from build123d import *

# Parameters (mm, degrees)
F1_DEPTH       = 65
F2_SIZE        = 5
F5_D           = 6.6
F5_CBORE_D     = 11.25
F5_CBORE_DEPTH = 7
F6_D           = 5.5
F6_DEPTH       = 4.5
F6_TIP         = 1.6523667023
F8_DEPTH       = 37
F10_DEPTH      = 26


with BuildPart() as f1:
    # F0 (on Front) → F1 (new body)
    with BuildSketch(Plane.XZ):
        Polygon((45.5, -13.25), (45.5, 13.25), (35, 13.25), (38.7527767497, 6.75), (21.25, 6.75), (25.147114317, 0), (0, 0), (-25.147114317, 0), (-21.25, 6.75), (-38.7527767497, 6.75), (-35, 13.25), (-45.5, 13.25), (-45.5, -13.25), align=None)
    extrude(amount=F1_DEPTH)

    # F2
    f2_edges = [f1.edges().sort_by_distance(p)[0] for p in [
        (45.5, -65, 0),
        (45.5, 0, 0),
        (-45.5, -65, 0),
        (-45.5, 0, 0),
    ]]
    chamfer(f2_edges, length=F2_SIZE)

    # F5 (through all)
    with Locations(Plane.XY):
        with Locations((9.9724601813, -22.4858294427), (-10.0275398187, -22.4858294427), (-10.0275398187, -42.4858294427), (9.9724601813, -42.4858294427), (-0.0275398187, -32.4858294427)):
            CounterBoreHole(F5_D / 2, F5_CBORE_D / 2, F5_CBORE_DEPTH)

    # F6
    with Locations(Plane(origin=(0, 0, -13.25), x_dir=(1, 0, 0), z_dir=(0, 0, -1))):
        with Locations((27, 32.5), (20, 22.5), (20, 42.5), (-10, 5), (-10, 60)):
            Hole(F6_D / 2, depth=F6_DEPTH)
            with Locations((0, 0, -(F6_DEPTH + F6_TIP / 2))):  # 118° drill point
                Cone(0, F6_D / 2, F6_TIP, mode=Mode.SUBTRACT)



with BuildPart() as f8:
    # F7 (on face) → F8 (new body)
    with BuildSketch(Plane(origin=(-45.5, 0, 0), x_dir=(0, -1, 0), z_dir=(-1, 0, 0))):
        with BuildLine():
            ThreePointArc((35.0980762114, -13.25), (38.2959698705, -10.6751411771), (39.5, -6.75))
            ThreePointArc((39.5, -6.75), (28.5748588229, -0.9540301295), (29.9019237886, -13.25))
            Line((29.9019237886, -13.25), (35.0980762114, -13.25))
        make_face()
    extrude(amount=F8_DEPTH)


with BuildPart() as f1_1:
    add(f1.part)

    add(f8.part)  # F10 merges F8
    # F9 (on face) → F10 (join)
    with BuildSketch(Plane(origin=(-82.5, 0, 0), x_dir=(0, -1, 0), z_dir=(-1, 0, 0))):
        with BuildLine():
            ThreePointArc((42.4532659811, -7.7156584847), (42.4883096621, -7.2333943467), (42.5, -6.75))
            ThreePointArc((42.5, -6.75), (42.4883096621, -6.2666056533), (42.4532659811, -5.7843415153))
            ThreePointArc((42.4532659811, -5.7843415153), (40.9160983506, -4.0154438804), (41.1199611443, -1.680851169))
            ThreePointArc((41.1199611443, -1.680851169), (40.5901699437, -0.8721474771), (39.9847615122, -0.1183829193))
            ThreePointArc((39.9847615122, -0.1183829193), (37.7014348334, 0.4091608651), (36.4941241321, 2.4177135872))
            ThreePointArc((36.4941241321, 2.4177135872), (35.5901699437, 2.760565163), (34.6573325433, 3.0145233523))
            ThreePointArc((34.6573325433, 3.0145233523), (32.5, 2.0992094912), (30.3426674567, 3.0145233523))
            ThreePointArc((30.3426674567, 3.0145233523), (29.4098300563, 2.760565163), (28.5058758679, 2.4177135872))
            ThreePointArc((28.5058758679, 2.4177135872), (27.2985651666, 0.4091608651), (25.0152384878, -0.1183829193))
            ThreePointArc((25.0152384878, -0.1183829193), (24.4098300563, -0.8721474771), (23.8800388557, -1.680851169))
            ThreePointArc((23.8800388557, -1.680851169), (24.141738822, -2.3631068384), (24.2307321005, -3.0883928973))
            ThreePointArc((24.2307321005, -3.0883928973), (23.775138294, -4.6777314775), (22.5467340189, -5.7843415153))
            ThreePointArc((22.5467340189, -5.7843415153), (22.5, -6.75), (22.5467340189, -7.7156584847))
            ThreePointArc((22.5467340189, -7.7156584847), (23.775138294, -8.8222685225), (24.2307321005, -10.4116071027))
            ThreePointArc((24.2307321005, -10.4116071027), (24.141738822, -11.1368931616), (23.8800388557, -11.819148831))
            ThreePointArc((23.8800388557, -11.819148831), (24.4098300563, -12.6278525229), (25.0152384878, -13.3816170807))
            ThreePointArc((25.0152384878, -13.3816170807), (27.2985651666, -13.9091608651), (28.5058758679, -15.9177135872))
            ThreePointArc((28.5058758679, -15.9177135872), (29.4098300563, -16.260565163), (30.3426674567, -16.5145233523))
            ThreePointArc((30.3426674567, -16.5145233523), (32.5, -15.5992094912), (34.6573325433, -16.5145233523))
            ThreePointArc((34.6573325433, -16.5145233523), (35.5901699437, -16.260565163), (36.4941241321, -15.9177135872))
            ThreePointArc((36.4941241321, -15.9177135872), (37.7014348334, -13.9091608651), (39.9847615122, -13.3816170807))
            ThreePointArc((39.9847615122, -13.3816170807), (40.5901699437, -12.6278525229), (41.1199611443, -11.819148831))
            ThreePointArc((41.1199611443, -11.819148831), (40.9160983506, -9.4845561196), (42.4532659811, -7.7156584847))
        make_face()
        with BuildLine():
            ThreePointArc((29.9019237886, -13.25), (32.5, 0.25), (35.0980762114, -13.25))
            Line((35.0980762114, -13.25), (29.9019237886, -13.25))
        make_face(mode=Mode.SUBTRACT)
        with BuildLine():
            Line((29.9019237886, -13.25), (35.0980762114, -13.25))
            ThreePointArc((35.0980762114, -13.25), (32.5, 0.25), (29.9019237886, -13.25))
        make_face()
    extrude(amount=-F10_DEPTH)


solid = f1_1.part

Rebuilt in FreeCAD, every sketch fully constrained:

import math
import FreeCAD as App
import Part
import Sketcher

V = App.Vector
Q = App.Units.Quantity


def edges_at(feature, points):
    """Names of the edges that pass closest to the given points."""
    edges = feature.Shape.Edges
    near = lambda p: min(range(len(edges)), key=lambda i: edges[i].distToShape(Part.Vertex(*p))[0])
    return sorted({f"Edge{near(p) + 1}" for p in points})

doc = App.newDocument("Part")
params = doc.addObject("Spreadsheet::Sheet", "Params")
for row, (alias, value) in enumerate([
    ("sketch1_width", "91 mm"),
    ("sketch1_width2", "10.5 mm"),
    ("sketch1_height", "26.5 mm"),
    ("pad1_length", "65 mm"),
    ("chamfer_size", "5 mm"),
    ("sketch2_diameter", "6.6 mm"),
    ("hole_diameter", "6.6 mm"),
    ("hole_cbore_diameter", "11.25 mm"),
    ("hole_cbore_depth", "7 mm"),
    ("sketch3_diameter", "5.5 mm"),
    ("hole2_diameter", "5.5 mm"),
    ("hole2_depth", "4.5 mm"),
    ("sketch4_radius", "7 mm"),
    ("pad2_length", "37 mm"),
    ("sketch5_radius", "10 mm"),
    ("sketch5_radius2", "3 mm"),
    ("pad3_length", "26 mm"),
], start=1):
    params.set(f"A{row}", alias)
    params.set(f"B{row}", "=" + value)
    params.setAlias(f"B{row}", alias)

body = doc.addObject("PartDesign::Body", "Body")

# Sketch on XZ plane
sketch1 = body.newObject("Sketcher::SketchObject", "Sketch")
sketch1.AttachmentSupport = (doc.getObject("XZ_Plane"), [""])
sketch1.MapMode = "FlatFace"
sketch1.addGeometry(Part.LineSegment(V(45.5, -13.25, 0), V(45.5, 13.25, 0)), False)
sketch1.addGeometry(Part.LineSegment(V(45.5, 13.25, 0), V(35, 13.25, 0)), False)
sketch1.addGeometry(Part.LineSegment(V(35, 13.25, 0), V(38.752777, 6.75, 0)), False)
sketch1.addGeometry(Part.LineSegment(V(38.752777, 6.75, 0), V(21.25, 6.75, 0)), False)
sketch1.addGeometry(Part.LineSegment(V(21.25, 6.75, 0), V(25.147114, 0, 0)), False)
sketch1.addGeometry(Part.LineSegment(V(25.147114, 0, 0), V(-25.147114, 0, 0)), False)
sketch1.addGeometry(Part.LineSegment(V(-25.147114, 0, 0), V(-21.25, 6.75, 0)), False)
sketch1.addGeometry(Part.LineSegment(V(-21.25, 6.75, 0), V(-38.752777, 6.75, 0)), False)
sketch1.addGeometry(Part.LineSegment(V(-38.752777, 6.75, 0), V(-35, 13.25, 0)), False)
sketch1.addGeometry(Part.LineSegment(V(-35, 13.25, 0), V(-45.5, 13.25, 0)), False)
sketch1.addGeometry(Part.LineSegment(V(-45.5, 13.25, 0), V(-45.5, -13.25, 0)), False)
sketch1.addGeometry(Part.LineSegment(V(-45.5, -13.25, 0), V(45.5, -13.25, 0)), False)
sketch1.addConstraint(Sketcher.Constraint("Coincident", 0, 2, 1, 1))
sketch1.addConstraint(Sketcher.Constraint("Coincident", 1, 2, 2, 1))
sketch1.addConstraint(Sketcher.Constraint("Coincident", 2, 2, 3, 1))
sketch1.addConstraint(Sketcher.Constraint("Coincident", 3, 2, 4, 1))
sketch1.addConstraint(Sketcher.Constraint("Coincident", 4, 2, 5, 1))
sketch1.addConstraint(Sketcher.Constraint("Coincident", 5, 2, 6, 1))
sketch1.addConstraint(Sketcher.Constraint("Coincident", 6, 2, 7, 1))
sketch1.addConstraint(Sketcher.Constraint("Coincident", 7, 2, 8, 1))
sketch1.addConstraint(Sketcher.Constraint("Coincident", 8, 2, 9, 1))
sketch1.addConstraint(Sketcher.Constraint("Coincident", 9, 2, 10, 1))
sketch1.addConstraint(Sketcher.Constraint("Coincident", 10, 2, 11, 1))
sketch1.addConstraint(Sketcher.Constraint("Coincident", 11, 2, 0, 1))
sketch1.addConstraint(Sketcher.Constraint("Vertical", 0))
sketch1.addConstraint(Sketcher.Constraint("Horizontal", 1))
sketch1.addConstraint(Sketcher.Constraint("Horizontal", 3))
sketch1.addConstraint(Sketcher.Constraint("Horizontal", 5))
sketch1.addConstraint(Sketcher.Constraint("Horizontal", 7))
sketch1.addConstraint(Sketcher.Constraint("Horizontal", 9))
sketch1.addConstraint(Sketcher.Constraint("Vertical", 10))
sketch1.addConstraint(Sketcher.Constraint("Horizontal", 11))
sketch1.addConstraint(Sketcher.Constraint("Symmetric", 4, 2, 5, 2, -1, 1))
sketch1.addConstraint(Sketcher.Constraint("Symmetric", 0, 2, 10, 2, -1, 1))
sketch1.addConstraint(Sketcher.Constraint("Symmetric", 3, 2, 6, 2, -2))
sketch1.addConstraint(Sketcher.Constraint("Symmetric", 1, 2, 8, 2, -2))
sketch1.addConstraint(Sketcher.Constraint("Parallel", 2, 4))
sketch1.addConstraint(Sketcher.Constraint("Parallel", 6, 8))
sketch1.addConstraint(Sketcher.Constraint("DistanceX", 11, 1, 11, 2, 91.0))
sketch1.addConstraint(Sketcher.Constraint("Angle", 2, Q("-60 deg")))
sketch1.addConstraint(Sketcher.Constraint("DistanceX", 1, 2, 1, 1, 10.5))
sketch1.addConstraint(Sketcher.Constraint("DistanceY", 0, 1, 0, 2, 26.5))
sketch1.addConstraint(Sketcher.Constraint("DistanceY", 10, 2, 7, 2, 20.0))
sketch1.addConstraint(Sketcher.Constraint("DistanceX", 6, 2, 3, 2, 42.5))
sketch1.setExpression("Constraints[26]", "Params.sketch1_width")
sketch1.setExpression("Constraints[28]", "Params.sketch1_width2")
sketch1.setExpression("Constraints[29]", "Params.sketch1_height")
pad1 = body.newObject("PartDesign::Pad", "Pad")
pad1.Profile = sketch1
pad1.setExpression("Length", "Params.pad1_length")
doc.recompute()

chamfer = body.newObject("PartDesign::Chamfer", "Chamfer")
chamfer.Base = (pad1, edges_at(pad1, [
    (45.5, -65, 0),
    (45.5, 0, 0),
    (-45.5, -65, 0),
    (-45.5, 0, 0),
]))
chamfer.setExpression("Size", "Params.chamfer_size")

# Sketch on XY plane
sketch2 = body.newObject("Sketcher::SketchObject", "Sketch001")
sketch2.AttachmentSupport = (doc.getObject("XY_Plane"), [""])
sketch2.MapMode = "FlatFace"
sketch2.addGeometry(Part.Circle(V(9.97246, -22.485829, 0), V(0, 0, 1), 3.3), False)
sketch2.addGeometry(Part.Circle(V(-10.02754, -22.485829, 0), V(0, 0, 1), 3.3), False)
sketch2.addGeometry(Part.Circle(V(-10.02754, -42.485829, 0), V(0, 0, 1), 3.3), False)
sketch2.addGeometry(Part.Circle(V(9.97246, -42.485829, 0), V(0, 0, 1), 3.3), False)
sketch2.addGeometry(Part.Circle(V(-0.02754, -32.485829, 0), V(0, 0, 1), 3.3), False)
sketch2.addConstraint(Sketcher.Constraint("Equal", 0, 1))
sketch2.addConstraint(Sketcher.Constraint("Equal", 1, 2))
sketch2.addConstraint(Sketcher.Constraint("Equal", 2, 3))
sketch2.addConstraint(Sketcher.Constraint("Equal", 3, 4))
sketch2.addConstraint(Sketcher.Constraint("Horizontal", 0, 3, 1, 3))
sketch2.addConstraint(Sketcher.Constraint("Horizontal", 2, 3, 3, 3))
sketch2.addConstraint(Sketcher.Constraint("Vertical", 1, 3, 2, 3))
sketch2.addConstraint(Sketcher.Constraint("Vertical", 0, 3, 3, 3))
sketch2.addConstraint(Sketcher.Constraint("Diameter", 0, 6.6))
sketch2.addConstraint(Sketcher.Constraint("DistanceX", 1, 3, 0, 3, 20.0))
sketch2.addConstraint(Sketcher.Constraint("DistanceY", 2, 3, 1, 3, 20.0))
sketch2.addConstraint(Sketcher.Constraint("DistanceX", 4, 3, 0, 3, 10.0))
sketch2.addConstraint(Sketcher.Constraint("DistanceY", 4, 3, 0, 3, 10.0))
sketch2.addConstraint(Sketcher.Constraint("DistanceX", -1, 1, 0, 3, 9.97246))
sketch2.addConstraint(Sketcher.Constraint("DistanceY", 0, 3, -1, 1, 22.485829))
sketch2.setExpression("Constraints[8]", "Params.sketch2_diameter")
doc.recompute()
hole = body.newObject("PartDesign::Hole", "Hole")
hole.Profile = sketch2
hole.ThreadType = "None"
hole.setExpression("Diameter", "Params.hole_diameter")
hole.DepthType = "ThroughAll"
hole.HoleCutType = "Counterbore"
hole.setExpression("HoleCutDiameter", "Params.hole_cbore_diameter")
hole.setExpression("HoleCutDepth", "Params.hole_cbore_depth")

# Sketch on XY plane
sketch3 = body.newObject("Sketcher::SketchObject", "Sketch002")
sketch3.AttachmentSupport = (doc.getObject("XY_Plane"), [""])
sketch3.MapMode = "FlatFace"
sketch3.AttachmentOffset = App.Placement(V(0, 0, -13.25), App.Rotation())
sketch3.addGeometry(Part.Circle(V(27, -32.5, 0), V(0, 0, 1), 2.75), False)
sketch3.addGeometry(Part.Circle(V(20, -22.5, 0), V(0, 0, 1), 2.75), False)
sketch3.addGeometry(Part.Circle(V(20, -42.5, 0), V(0, 0, 1), 2.75), False)
sketch3.addGeometry(Part.Circle(V(-10, -5, 0), V(0, 0, 1), 2.75), False)
sketch3.addGeometry(Part.Circle(V(-10, -60, 0), V(0, 0, 1), 2.75), False)
sketch3.addConstraint(Sketcher.Constraint("Equal", 0, 1))
sketch3.addConstraint(Sketcher.Constraint("Equal", 1, 2))
sketch3.addConstraint(Sketcher.Constraint("Equal", 2, 3))
sketch3.addConstraint(Sketcher.Constraint("Equal", 3, 4))
sketch3.addConstraint(Sketcher.Constraint("Vertical", 1, 3, 2, 3))
sketch3.addConstraint(Sketcher.Constraint("Vertical", 3, 3, 4, 3))
sketch3.addConstraint(Sketcher.Constraint("Diameter", 0, 5.5))
sketch3.addConstraint(Sketcher.Constraint("DistanceX", -1, 1, 0, 3, 27.0))
sketch3.addConstraint(Sketcher.Constraint("DistanceX", -1, 1, 1, 3, 20.0))
sketch3.addConstraint(Sketcher.Constraint("DistanceX", 3, 3, -1, 1, 10.0))
sketch3.addConstraint(Sketcher.Constraint("DistanceY", 3, 3, -1, 1, 5.0))
sketch3.addConstraint(Sketcher.Constraint("DistanceY", 4, 3, -1, 1, 60.0))
sketch3.addConstraint(Sketcher.Constraint("DistanceY", 0, 3, 1, 3, 10.0))
sketch3.addConstraint(Sketcher.Constraint("DistanceY", 2, 3, 0, 3, 10.0))
sketch3.addConstraint(Sketcher.Constraint("DistanceY", 0, 3, -1, 1, 32.5))
sketch3.setExpression("Constraints[6]", "Params.sketch3_diameter")
doc.recompute()
hole2 = body.newObject("PartDesign::Hole", "Hole001")
hole2.Profile = sketch3
hole2.ThreadType = "None"
hole2.setExpression("Diameter", "Params.hole2_diameter")
hole2.DepthType = "Dimension"
hole2.setExpression("Depth", "Params.hole2_depth")
hole2.DrillPoint = "Angled"
hole2.DrillPointAngle = 118
hole2.Reversed = True
body2 = doc.addObject("PartDesign::Body", "Body001")

# Sketch on YZ plane
sketch4 = body2.newObject("Sketcher::SketchObject", "Sketch003")
sketch4.AttachmentSupport = (doc.getObject("YZ_Plane001"), [""])
sketch4.MapMode = "FlatFace"
sketch4.AttachmentOffset = App.Placement(V(0, 0, -45.5), App.Rotation())
sketch4.addGeometry(Part.ArcOfCircle(Part.Circle(V(-32.5, -6.75, 0), V(0, 0, 1), 7), math.radians(180), math.radians(248.213211)), False)
sketch4.addGeometry(Part.ArcOfCircle(Part.Circle(V(-32.5, -6.75, 0), V(0, 0, 1), 7), math.radians(-68.213211), math.radians(180)), False)
sketch4.addGeometry(Part.LineSegment(V(-29.901924, -13.25, 0), V(-35.098076, -13.25, 0)), False)
sketch4.addConstraint(Sketcher.Constraint("Tangent", 0, 1, 1, 2))
sketch4.addConstraint(Sketcher.Constraint("Coincident", 1, 1, 2, 1))
sketch4.addConstraint(Sketcher.Constraint("Coincident", 2, 2, 0, 2))
sketch4.addConstraint(Sketcher.Constraint("Horizontal", 2))
sketch4.addConstraint(Sketcher.Constraint("Equal", 0, 1))
sketch4.addConstraint(Sketcher.Constraint("Horizontal", 1, 3, 0, 1))
sketch4.addConstraint(Sketcher.Constraint("Radius", 0, 7.0))
sketch4.addConstraint(Sketcher.Constraint("DistanceX", 0, 3, -1, 1, 32.5))
sketch4.addConstraint(Sketcher.Constraint("DistanceY", 1, 1, 0, 3, 6.5))
sketch4.addConstraint(Sketcher.Constraint("DistanceY", 0, 3, -1, 1, 6.75))
sketch4.setExpression("Constraints[6]", "Params.sketch4_radius")
pad2 = body2.newObject("PartDesign::Pad", "Pad001")
pad2.Profile = sketch4
pad2.setExpression("Length", "Params.pad2_length")
pad2.Reversed = True
doc.recompute()

boolean = body.newObject("PartDesign::Boolean", "Boolean")
boolean.Type = "Fuse"
boolean.addObjects([body2])

# Sketch on YZ plane
sketch5 = body.newObject("Sketcher::SketchObject", "Sketch004")
sketch5.AttachmentSupport = (doc.getObject("YZ_Plane"), [""])
sketch5.MapMode = "FlatFace"
sketch5.AttachmentOffset = App.Placement(V(0, 0, -82.5), App.Rotation())
sketch5.addGeometry(Part.ArcOfCircle(Part.Circle(V(-32.5, -6.75, 0), V(0, 0, 1), 10), math.radians(180), math.radians(185.541451)), False)
sketch5.addGeometry(Part.ArcOfCircle(Part.Circle(V(-32.5, -6.75, 0), V(0, 0, 1), 10), math.radians(174.458549), math.radians(180)), False)
sketch5.addGeometry(Part.ArcOfCircle(Part.Circle(V(-43.769268, -3.088393, 0), V(0, 0, 1), 3), math.radians(-63.981119), math.radians(27.981119)), False)
sketch5.addGeometry(Part.ArcOfCircle(Part.Circle(V(-32.5, -6.75, 0), V(0, 0, 1), 10), math.radians(138.458549), math.radians(149.541451)), False)
sketch5.addGeometry(Part.ArcOfCircle(Part.Circle(V(-39.464791, 2.836212, 0), V(0, 0, 1), 3), math.radians(-99.981119), math.radians(-8.018881)), False)
sketch5.addGeometry(Part.ArcOfCircle(Part.Circle(V(-32.5, -6.75, 0), V(0, 0, 1), 10), math.radians(102.458549), math.radians(113.541451)), False)
sketch5.addGeometry(Part.ArcOfCircle(Part.Circle(V(-32.5, 5.099209, 0), V(0, 0, 1), 3), math.radians(-135.981119), math.radians(-44.018881)), False)
sketch5.addGeometry(Part.ArcOfCircle(Part.Circle(V(-32.5, -6.75, 0), V(0, 0, 1), 10), math.radians(66.458549), math.radians(77.541451)), False)
sketch5.addGeometry(Part.ArcOfCircle(Part.Circle(V(-25.535209, 2.836212, 0), V(0, 0, 1), 3), math.radians(-171.981119), math.radians(-80.018881)), False)
sketch5.addGeometry(Part.ArcOfCircle(Part.Circle(V(-32.5, -6.75, 0), V(0, 0, 1), 10), math.radians(30.458549), math.radians(41.541451)), False)
sketch5.addGeometry(Part.ArcOfCircle(Part.Circle(V(-21.230732, -3.088393, 0), V(0, 0, 1), 3), math.radians(152.018881), math.radians(180)), False)
sketch5.addGeometry(Part.ArcOfCircle(Part.Circle(V(-21.230732, -3.088393, 0), V(0, 0, 1), 3), math.radians(180), math.radians(243.981119)), False)
sketch5.addGeometry(Part.ArcOfCircle(Part.Circle(V(-32.5, -6.75, 0), V(0, 0, 1), 10), math.radians(-5.541451), math.radians(5.541451)), False)
sketch5.addGeometry(Part.ArcOfCircle(Part.Circle(V(-21.230732, -10.411607, 0), V(0, 0, 1), 3), math.radians(116.018881), math.radians(180)), False)
sketch5.addGeometry(Part.ArcOfCircle(Part.Circle(V(-21.230732, -10.411607, 0), V(0, 0, 1), 3), math.radians(-180), math.radians(-152.018881)), False)
sketch5.addGeometry(Part.ArcOfCircle(Part.Circle(V(-32.5, -6.75, 0), V(0, 0, 1), 10), math.radians(-41.541451), math.radians(-30.458549)), False)
sketch5.addGeometry(Part.ArcOfCircle(Part.Circle(V(-25.535209, -16.336212, 0), V(0, 0, 1), 3), math.radians(80.018881), math.radians(171.981119)), False)
sketch5.addGeometry(Part.ArcOfCircle(Part.Circle(V(-32.5, -6.75, 0), V(0, 0, 1), 10), math.radians(-77.541451), math.radians(-66.458549)), False)
sketch5.addGeometry(Part.ArcOfCircle(Part.Circle(V(-32.5, -18.599209, 0), V(0, 0, 1), 3), math.radians(44.018881), math.radians(135.981119)), False)
sketch5.addGeometry(Part.ArcOfCircle(Part.Circle(V(-32.5, -6.75, 0), V(0, 0, 1), 10), math.radians(-113.541451), math.radians(-102.458549)), False)
sketch5.addGeometry(Part.ArcOfCircle(Part.Circle(V(-39.464791, -16.336212, 0), V(0, 0, 1), 3), math.radians(8.018881), math.radians(99.981119)), False)
sketch5.addGeometry(Part.ArcOfCircle(Part.Circle(V(-32.5, -6.75, 0), V(0, 0, 1), 10), math.radians(-149.541451), math.radians(-138.458549)), False)
sketch5.addGeometry(Part.ArcOfCircle(Part.Circle(V(-43.769268, -10.411607, 0), V(0, 0, 1), 3), math.radians(-27.981119), math.radians(63.981119)), False)
sketch5.addConstraint(Sketcher.Constraint("Tangent", 0, 1, 1, 2))
sketch5.addConstraint(Sketcher.Constraint("Coincident", 1, 1, 2, 1))
sketch5.addConstraint(Sketcher.Constraint("Coincident", 2, 2, 3, 2))
sketch5.addConstraint(Sketcher.Constraint("Coincident", 3, 1, 4, 1))
sketch5.addConstraint(Sketcher.Constraint("Coincident", 4, 2, 5, 2))
sketch5.addConstraint(Sketcher.Constraint("Coincident", 5, 1, 6, 1))
sketch5.addConstraint(Sketcher.Constraint("Coincident", 6, 2, 7, 2))
sketch5.addConstraint(Sketcher.Constraint("Coincident", 7, 1, 8, 1))
sketch5.addConstraint(Sketcher.Constraint("Coincident", 8, 2, 9, 2))
sketch5.addConstraint(Sketcher.Constraint("Coincident", 9, 1, 10, 1))
sketch5.addConstraint(Sketcher.Constraint("Tangent", 10, 2, 11, 1))
sketch5.addConstraint(Sketcher.Constraint("Coincident", 11, 2, 12, 2))
sketch5.addConstraint(Sketcher.Constraint("Coincident", 12, 1, 13, 1))
sketch5.addConstraint(Sketcher.Constraint("Tangent", 13, 2, 14, 1))
sketch5.addConstraint(Sketcher.Constraint("Coincident", 14, 2, 15, 2))
sketch5.addConstraint(Sketcher.Constraint("Coincident", 15, 1, 16, 1))
sketch5.addConstraint(Sketcher.Constraint("Coincident", 16, 2, 17, 2))
sketch5.addConstraint(Sketcher.Constraint("Coincident", 17, 1, 18, 1))
sketch5.addConstraint(Sketcher.Constraint("Coincident", 18, 2, 19, 2))
sketch5.addConstraint(Sketcher.Constraint("Coincident", 19, 1, 20, 1))
sketch5.addConstraint(Sketcher.Constraint("Coincident", 20, 2, 21, 2))
sketch5.addConstraint(Sketcher.Constraint("Coincident", 21, 1, 22, 1))
sketch5.addConstraint(Sketcher.Constraint("Coincident", 22, 2, 0, 2))
sketch5.addConstraint(Sketcher.Constraint("Coincident", 3, 3, 0, 3))
sketch5.addConstraint(Sketcher.Constraint("Coincident", 5, 3, 0, 3))
sketch5.addConstraint(Sketcher.Constraint("Coincident", 7, 3, 0, 3))
sketch5.addConstraint(Sketcher.Constraint("Coincident", 9, 3, 0, 3))
sketch5.addConstraint(Sketcher.Constraint("Coincident", 12, 3, 0, 3))
sketch5.addConstraint(Sketcher.Constraint("Coincident", 15, 3, 0, 3))
sketch5.addConstraint(Sketcher.Constraint("Coincident", 17, 3, 0, 3))
sketch5.addConstraint(Sketcher.Constraint("Coincident", 19, 3, 0, 3))
sketch5.addConstraint(Sketcher.Constraint("Coincident", 21, 3, 0, 3))
sketch5.addConstraint(Sketcher.Constraint("Equal", 0, 1))
sketch5.addConstraint(Sketcher.Constraint("Equal", 1, 3))
sketch5.addConstraint(Sketcher.Constraint("Equal", 2, 4))
sketch5.addConstraint(Sketcher.Constraint("Equal", 3, 5))
sketch5.addConstraint(Sketcher.Constraint("Equal", 4, 6))
sketch5.addConstraint(Sketcher.Constraint("Equal", 5, 7))
sketch5.addConstraint(Sketcher.Constraint("Equal", 6, 8))
sketch5.addConstraint(Sketcher.Constraint("Equal", 7, 9))
sketch5.addConstraint(Sketcher.Constraint("Equal", 8, 10))
sketch5.addConstraint(Sketcher.Constraint("Equal", 10, 11))
sketch5.addConstraint(Sketcher.Constraint("Equal", 9, 12))
sketch5.addConstraint(Sketcher.Constraint("Equal", 11, 13))
sketch5.addConstraint(Sketcher.Constraint("Equal", 13, 14))
sketch5.addConstraint(Sketcher.Constraint("Equal", 12, 15))
sketch5.addConstraint(Sketcher.Constraint("Equal", 14, 16))
sketch5.addConstraint(Sketcher.Constraint("Equal", 15, 17))
sketch5.addConstraint(Sketcher.Constraint("Equal", 16, 18))
sketch5.addConstraint(Sketcher.Constraint("Equal", 17, 19))
sketch5.addConstraint(Sketcher.Constraint("Equal", 18, 20))
sketch5.addConstraint(Sketcher.Constraint("Equal", 19, 21))
sketch5.addConstraint(Sketcher.Constraint("Equal", 20, 22))
sketch5.addConstraint(Sketcher.Constraint("Horizontal", 4, 3, 8, 3))
sketch5.addConstraint(Sketcher.Constraint("Horizontal", 2, 3, 10, 3))
sketch5.addConstraint(Sketcher.Constraint("Horizontal", 16, 3, 20, 3))
sketch5.addConstraint(Sketcher.Constraint("Horizontal", 14, 3, 22, 3))
sketch5.addConstraint(Sketcher.Constraint("Horizontal", 21, 3, 0, 1))
sketch5.addConstraint(Sketcher.Constraint("Horizontal", 5, 1, 6, 2))
sketch5.addConstraint(Sketcher.Constraint("Horizontal", 4, 2, 7, 1))
sketch5.addConstraint(Sketcher.Constraint("Horizontal", 2, 2, 9, 1))
sketch5.addConstraint(Sketcher.Constraint("Horizontal", 11, 3, 10, 2))
sketch5.addConstraint(Sketcher.Constraint("Horizontal", 22, 3, 13, 2))
sketch5.addConstraint(Sketcher.Constraint("Horizontal", 17, 1, 18, 2))
sketch5.addConstraint(Sketcher.Constraint("Horizontal", 16, 2, 19, 1))
sketch5.addConstraint(Sketcher.Constraint("Horizontal", 14, 2, 21, 1))
sketch5.addConstraint(Sketcher.Constraint("Vertical", 11, 3, 13, 3))
sketch5.addConstraint(Sketcher.Constraint("Vertical", 8, 3, 16, 3))
sketch5.addConstraint(Sketcher.Constraint("Vertical", 11, 2, 12, 1))
sketch5.addConstraint(Sketcher.Constraint("Vertical", 8, 2, 15, 1))
sketch5.addConstraint(Sketcher.Constraint("Vertical", 6, 2, 17, 1))
sketch5.addConstraint(Sketcher.Constraint("Radius", 0, 10.0))
sketch5.addConstraint(Sketcher.Constraint("Radius", 2, 3.0))
sketch5.addConstraint(Sketcher.Constraint("DistanceX", 0, 3, -1, 1, 32.5))
sketch5.addConstraint(Sketcher.Constraint("DistanceY", 0, 3, -1, 1, 6.75))
sketch5.addConstraint(Sketcher.Constraint("DistanceX", 2, 3, 1, 1, 1.316002))
sketch5.addConstraint(Sketcher.Constraint("DistanceX", 2, 2, 3, 1, 1.1352))
sketch5.addConstraint(Sketcher.Constraint("DistanceY", 4, 2, 4, 3, 0.418498))
sketch5.addConstraint(Sketcher.Constraint("DistanceX", 4, 3, -1, 1, 39.464791))
sketch5.addConstraint(Sketcher.Constraint("DistanceY", -1, 1, 6, 3, 5.099209))
sketch5.setExpression("Constraints[71]", "Params.sketch5_radius")
sketch5.setExpression("Constraints[72]", "Params.sketch5_radius2")
pad3 = body.newObject("PartDesign::Pad", "Pad002")
pad3.Profile = sketch5
pad3.setExpression("Length", "Params.pad3_length")

doc.recompute()
